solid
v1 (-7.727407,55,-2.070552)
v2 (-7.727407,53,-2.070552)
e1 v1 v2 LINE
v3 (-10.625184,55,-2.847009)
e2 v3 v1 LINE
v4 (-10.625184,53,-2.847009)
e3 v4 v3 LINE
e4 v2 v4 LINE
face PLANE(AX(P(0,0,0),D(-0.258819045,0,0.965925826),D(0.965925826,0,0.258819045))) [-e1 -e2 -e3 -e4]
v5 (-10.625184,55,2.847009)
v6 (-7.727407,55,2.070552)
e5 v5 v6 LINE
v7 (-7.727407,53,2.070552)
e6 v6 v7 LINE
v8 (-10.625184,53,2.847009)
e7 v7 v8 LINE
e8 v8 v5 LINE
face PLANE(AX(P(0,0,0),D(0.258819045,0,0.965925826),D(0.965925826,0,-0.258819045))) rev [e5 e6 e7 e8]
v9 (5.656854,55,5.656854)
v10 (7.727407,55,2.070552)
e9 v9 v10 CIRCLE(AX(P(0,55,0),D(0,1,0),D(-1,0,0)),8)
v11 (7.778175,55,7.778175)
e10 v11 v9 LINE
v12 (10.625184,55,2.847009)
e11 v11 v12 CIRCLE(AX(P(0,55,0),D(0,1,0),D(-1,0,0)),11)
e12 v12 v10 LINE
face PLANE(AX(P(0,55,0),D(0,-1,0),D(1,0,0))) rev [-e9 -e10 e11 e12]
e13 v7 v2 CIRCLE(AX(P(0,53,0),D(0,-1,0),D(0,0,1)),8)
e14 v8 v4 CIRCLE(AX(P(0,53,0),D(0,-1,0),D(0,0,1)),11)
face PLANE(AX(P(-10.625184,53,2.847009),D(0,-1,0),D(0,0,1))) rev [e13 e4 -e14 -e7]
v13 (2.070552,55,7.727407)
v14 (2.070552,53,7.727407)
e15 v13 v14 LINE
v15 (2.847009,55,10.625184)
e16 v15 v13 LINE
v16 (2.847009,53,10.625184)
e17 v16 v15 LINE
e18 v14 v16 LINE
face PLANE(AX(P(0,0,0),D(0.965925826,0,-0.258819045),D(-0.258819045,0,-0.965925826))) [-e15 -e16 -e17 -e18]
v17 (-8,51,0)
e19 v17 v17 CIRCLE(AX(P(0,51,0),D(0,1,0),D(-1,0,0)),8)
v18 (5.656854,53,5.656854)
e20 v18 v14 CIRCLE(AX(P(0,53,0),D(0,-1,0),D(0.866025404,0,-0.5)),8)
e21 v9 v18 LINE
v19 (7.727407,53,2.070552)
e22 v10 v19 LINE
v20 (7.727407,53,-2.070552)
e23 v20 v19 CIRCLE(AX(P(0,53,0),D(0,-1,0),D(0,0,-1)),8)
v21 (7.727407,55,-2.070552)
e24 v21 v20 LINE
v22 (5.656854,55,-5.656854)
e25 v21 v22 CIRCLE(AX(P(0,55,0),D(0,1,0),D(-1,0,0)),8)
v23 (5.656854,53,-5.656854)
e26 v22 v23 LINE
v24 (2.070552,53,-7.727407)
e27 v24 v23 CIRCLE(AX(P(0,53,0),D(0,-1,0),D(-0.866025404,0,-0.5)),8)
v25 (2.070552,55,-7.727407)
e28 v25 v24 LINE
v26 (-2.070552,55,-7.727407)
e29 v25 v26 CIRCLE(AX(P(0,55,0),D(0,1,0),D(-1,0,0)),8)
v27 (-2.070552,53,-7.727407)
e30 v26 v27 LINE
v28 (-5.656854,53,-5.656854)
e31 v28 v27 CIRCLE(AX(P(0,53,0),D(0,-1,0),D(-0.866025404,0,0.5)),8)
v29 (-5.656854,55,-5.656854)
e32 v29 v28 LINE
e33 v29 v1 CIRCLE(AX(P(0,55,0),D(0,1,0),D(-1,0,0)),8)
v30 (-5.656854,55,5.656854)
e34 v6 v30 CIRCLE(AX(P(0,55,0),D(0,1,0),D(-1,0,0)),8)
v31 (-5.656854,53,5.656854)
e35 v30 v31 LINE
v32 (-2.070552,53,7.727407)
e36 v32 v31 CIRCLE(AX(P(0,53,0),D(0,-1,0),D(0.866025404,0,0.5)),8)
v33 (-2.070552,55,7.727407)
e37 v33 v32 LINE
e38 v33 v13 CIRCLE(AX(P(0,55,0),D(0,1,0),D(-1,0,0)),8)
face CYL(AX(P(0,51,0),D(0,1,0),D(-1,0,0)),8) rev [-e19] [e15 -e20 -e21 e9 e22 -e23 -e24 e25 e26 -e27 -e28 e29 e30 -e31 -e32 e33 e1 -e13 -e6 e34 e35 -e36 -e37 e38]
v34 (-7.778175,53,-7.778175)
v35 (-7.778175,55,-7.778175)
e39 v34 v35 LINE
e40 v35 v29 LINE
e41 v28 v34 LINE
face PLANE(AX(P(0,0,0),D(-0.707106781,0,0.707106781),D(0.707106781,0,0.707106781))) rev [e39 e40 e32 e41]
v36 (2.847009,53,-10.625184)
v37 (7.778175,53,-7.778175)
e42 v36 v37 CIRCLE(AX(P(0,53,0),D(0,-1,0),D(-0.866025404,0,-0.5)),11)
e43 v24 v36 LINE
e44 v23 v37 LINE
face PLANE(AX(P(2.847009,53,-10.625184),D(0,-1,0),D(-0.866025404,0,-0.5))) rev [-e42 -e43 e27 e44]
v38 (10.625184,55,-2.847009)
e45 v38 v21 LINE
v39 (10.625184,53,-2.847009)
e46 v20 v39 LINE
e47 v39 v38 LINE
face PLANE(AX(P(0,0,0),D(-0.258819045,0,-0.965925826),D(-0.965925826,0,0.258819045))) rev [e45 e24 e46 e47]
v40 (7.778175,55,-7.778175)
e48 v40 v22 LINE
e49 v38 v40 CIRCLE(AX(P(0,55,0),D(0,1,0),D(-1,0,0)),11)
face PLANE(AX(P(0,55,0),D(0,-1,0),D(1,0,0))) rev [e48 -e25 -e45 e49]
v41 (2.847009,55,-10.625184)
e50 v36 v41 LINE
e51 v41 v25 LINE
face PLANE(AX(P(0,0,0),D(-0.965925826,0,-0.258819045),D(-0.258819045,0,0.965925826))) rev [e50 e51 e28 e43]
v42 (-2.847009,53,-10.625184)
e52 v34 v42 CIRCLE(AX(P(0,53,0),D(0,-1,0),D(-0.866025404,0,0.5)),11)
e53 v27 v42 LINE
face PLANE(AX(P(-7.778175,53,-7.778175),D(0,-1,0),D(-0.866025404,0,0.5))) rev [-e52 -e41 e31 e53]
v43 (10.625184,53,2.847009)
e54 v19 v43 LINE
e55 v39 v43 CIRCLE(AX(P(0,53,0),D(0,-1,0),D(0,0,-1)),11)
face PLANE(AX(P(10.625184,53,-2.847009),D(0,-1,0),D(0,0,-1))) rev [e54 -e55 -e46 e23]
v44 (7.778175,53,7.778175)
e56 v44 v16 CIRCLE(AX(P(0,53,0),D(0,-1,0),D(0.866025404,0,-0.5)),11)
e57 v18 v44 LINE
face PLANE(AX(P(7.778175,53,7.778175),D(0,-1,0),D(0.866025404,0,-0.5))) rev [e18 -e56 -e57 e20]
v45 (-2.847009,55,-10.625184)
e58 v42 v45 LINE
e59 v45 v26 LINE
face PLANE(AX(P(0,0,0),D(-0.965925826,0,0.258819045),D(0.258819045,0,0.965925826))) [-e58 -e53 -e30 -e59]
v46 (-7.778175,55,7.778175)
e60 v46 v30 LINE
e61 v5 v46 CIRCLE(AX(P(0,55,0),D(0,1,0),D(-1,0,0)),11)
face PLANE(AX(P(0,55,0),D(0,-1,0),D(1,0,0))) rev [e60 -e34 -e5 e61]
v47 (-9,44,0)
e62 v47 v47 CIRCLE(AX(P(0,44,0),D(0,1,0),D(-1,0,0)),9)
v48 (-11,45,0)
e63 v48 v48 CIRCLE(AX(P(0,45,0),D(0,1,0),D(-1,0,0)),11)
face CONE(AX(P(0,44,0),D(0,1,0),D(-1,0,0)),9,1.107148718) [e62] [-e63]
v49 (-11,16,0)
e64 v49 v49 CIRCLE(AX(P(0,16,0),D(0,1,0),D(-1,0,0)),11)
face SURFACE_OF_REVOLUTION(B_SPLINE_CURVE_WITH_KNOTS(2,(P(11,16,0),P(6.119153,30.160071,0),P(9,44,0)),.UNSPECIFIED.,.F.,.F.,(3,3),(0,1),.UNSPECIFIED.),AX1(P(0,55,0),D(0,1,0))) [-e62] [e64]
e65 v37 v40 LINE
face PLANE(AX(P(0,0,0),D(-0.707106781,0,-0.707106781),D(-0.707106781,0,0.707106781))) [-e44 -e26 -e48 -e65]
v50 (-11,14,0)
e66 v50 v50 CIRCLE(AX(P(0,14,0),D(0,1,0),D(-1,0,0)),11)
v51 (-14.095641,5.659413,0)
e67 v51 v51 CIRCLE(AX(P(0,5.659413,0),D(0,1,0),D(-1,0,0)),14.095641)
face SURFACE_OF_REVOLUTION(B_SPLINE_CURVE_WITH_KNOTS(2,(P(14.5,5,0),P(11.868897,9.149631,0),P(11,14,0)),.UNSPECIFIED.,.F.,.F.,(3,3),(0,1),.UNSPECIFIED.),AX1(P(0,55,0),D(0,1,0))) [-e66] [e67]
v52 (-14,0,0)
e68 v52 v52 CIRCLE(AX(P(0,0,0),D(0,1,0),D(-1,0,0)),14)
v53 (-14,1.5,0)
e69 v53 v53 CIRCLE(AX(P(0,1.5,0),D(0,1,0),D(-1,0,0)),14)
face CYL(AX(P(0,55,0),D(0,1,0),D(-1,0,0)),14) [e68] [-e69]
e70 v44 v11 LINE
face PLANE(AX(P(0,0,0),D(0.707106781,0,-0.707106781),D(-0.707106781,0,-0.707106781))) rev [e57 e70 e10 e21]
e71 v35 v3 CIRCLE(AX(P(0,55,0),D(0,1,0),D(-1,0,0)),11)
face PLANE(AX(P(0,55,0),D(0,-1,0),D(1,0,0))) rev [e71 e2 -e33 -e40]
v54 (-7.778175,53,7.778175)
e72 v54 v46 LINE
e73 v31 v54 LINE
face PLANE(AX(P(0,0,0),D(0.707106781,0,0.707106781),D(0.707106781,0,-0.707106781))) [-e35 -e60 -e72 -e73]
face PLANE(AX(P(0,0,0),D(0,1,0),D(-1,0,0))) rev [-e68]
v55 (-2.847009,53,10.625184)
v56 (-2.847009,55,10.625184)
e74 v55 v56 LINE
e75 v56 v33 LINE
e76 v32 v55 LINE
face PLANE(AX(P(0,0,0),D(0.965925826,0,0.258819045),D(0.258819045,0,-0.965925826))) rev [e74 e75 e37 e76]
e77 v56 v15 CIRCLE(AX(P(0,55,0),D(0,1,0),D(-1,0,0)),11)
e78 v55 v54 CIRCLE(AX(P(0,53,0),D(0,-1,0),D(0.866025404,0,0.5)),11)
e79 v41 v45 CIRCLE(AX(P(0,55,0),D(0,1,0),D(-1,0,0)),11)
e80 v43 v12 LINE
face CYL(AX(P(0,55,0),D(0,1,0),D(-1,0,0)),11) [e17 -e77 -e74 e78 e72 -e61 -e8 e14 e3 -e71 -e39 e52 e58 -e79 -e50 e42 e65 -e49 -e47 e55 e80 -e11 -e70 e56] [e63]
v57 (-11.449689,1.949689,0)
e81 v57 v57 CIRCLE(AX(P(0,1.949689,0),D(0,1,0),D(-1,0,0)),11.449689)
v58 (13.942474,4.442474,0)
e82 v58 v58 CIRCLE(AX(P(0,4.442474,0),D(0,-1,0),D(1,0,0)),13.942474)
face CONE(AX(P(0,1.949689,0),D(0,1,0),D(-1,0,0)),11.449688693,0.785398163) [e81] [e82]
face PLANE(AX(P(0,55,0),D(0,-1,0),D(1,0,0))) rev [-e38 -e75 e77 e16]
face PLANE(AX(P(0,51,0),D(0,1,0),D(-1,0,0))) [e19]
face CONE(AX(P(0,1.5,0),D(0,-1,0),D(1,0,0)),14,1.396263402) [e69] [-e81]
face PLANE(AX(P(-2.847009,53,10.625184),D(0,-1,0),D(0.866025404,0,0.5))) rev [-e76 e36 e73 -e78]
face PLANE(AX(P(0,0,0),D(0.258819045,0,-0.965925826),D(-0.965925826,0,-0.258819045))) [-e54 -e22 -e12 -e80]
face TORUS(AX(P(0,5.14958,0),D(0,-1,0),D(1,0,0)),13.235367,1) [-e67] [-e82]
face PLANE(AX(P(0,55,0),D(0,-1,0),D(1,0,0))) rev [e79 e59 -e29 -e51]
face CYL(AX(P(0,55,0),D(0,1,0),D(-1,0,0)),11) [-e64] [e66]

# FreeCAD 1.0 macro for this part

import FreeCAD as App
import Part
import Sketcher
from FreeCAD import Vector
Q = App.Units.Quantity


def edges_at(feature, points):
    """Names of the edges that pass closest to the given points."""
    edges = feature.Shape.Edges
    near = lambda p: min(range(len(edges)), key=lambda i: edges[i].distToShape(Part.Vertex(*p))[0])
    return sorted({f"Edge{near(p) + 1}" for p in points})

doc = App.newDocument("Part")
body = doc.addObject("PartDesign::Body", "Body")

# Sketch on XY plane
sketch1 = body.newObject("Sketcher::SketchObject", "Sketch")
sketch1.AttachmentSupport = (doc.getObject("XY_Plane"), [""])
sketch1.MapMode = "FlatFace"
sketch1.addGeometry([
    Part.LineSegment(Vector(0, 0, 0), Vector(14, 0, 0)),  # 0
    Part.LineSegment(Vector(14, 0, 0), Vector(14, 1.5, 0)),  # 1
    Part.LineSegment(Vector(14, 1.5, 0), Vector(11.449689, 1.949689, 0)),  # 2
    Part.LineSegment(Vector(11.449689, 1.949689, 0), Vector(14.5, 5, 0)),  # 3
    Part.BSplineCurve([Vector(11, 14, 0), Vector(11.868897, 9.149631, 0), Vector(14.5, 5, 0)], [3, 3], [0, 1], False, 2, [1, 1, 1], False),  # 4
    Part.LineSegment(Vector(11, 14, 0), Vector(11, 16, 0)),  # 5
    Part.BSplineCurve([Vector(9, 44, 0), Vector(6.119153, 30.160071, 0), Vector(11, 16, 0)], [3, 3], [0, 1], False, 2, [1, 1, 1], False),  # 6
    Part.LineSegment(Vector(9, 44, 0), Vector(11, 45, 0)),  # 7
    Part.LineSegment(Vector(11, 45, 0), Vector(11, 55, 0)),  # 8
    Part.LineSegment(Vector(11, 55, 0), Vector(0, 55, 0)),  # 9
    Part.LineSegment(Vector(0, 55, 0), Vector(0, 0, 0)),  # 10
], False)
sketch1.addConstraint([
    Sketcher.Constraint("Block", 4),
    Sketcher.Constraint("Block", 6),
    Sketcher.Constraint("Coincident", 0, 2, 1, 1),
    Sketcher.Constraint("Coincident", 1, 2, 2, 1),
    Sketcher.Constraint("Coincident", 2, 2, 3, 1),
    Sketcher.Constraint("Coincident", 3, 2, 4, 2),
    Sketcher.Constraint("Coincident", 4, 1, 5, 1),
    Sketcher.Constraint("Coincident", 5, 2, 6, 2),
    Sketcher.Constraint("Coincident", 6, 1, 7, 1),
    Sketcher.Constraint("Coincident", 7, 2, 8, 1),
    Sketcher.Constraint("Coincident", 8, 2, 9, 1),
    Sketcher.Constraint("Coincident", 9, 2, 10, 1),
    Sketcher.Constraint("Coincident", 10, 2, 0, 1),
    Sketcher.Constraint("Horizontal", 0),
    Sketcher.Constraint("Vertical", 1),
    Sketcher.Constraint("Vertical", 8),
    Sketcher.Constraint("Horizontal", 9),
    Sketcher.Constraint("Vertical", 10),
    Sketcher.Constraint("Coincident", 10, 2, -1, 1),
    Sketcher.Constraint("Vertical", 5, 2, 7, 2),
    Sketcher.Constraint("DistanceX", 0, 1, 0, 2, Q("14 mm")),
    Sketcher.Constraint("DistanceY", 8, 1, 8, 2, Q("10 mm")),
    Sketcher.Constraint("DistanceY", 10, 2, 10, 1, Q("55 mm")),
    Sketcher.Constraint("Angle", 2, Q("170 deg")),
    Sketcher.Constraint("Angle", 3, Q("45 deg")),
    Sketcher.Constraint("DistanceY", 1, 1, 1, 2, Q("1.5 mm")),
])
revolution = body.newObject("PartDesign::Revolution", "Revolution")
revolution.Profile = sketch1
revolution.ReferenceAxis = (sketch1, ["V_Axis"])
revolution.Angle = 360
doc.recompute()

fillet = body.newObject("PartDesign::Fillet", "Fillet")
fillet.Base = (revolution, edges_at(revolution, [(14.5, 5, 0)]))
fillet.Radius = 1

# Sketch on XZ plane
sketch2 = body.newObject("Sketcher::SketchObject", "Sketch001")
sketch2.AttachmentSupport = (doc.getObject("XZ_Plane"), [""])
sketch2.MapMode = "FlatFace"
sketch2.AttachmentOffset = App.Placement(Vector(0, 0, -55), App.Rotation())
sketch2.addGeometry(Part.Circle(Vector(0, 0, 0), Vector(0, 0, 1), 8), False)
sketch2.addConstraint([
    Sketcher.Constraint("Coincident", 0, 3, -1, 1),
    Sketcher.Constraint("Diameter", 0, Q("16 mm")),
])
pocket1 = body.newObject("PartDesign::Pocket", "Pocket")
pocket1.Profile = sketch2
pocket1.Length = 4
pocket1.Reversed = True

# Sketch on XY plane
sketch3 = body.newObject("Sketcher::SketchObject", "Sketch002")
sketch3.AttachmentSupport = (doc.getObject("XY_Plane"), [""])
sketch3.MapMode = "FlatFace"
sketch3.addGeometry([
    Part.LineSegment(Vector(8, 55, 0), Vector(8, 53, 0)),
    Part.LineSegment(Vector(8, 53, 0), Vector(11, 53, 0)),
    Part.LineSegment(Vector(11, 53, 0), Vector(11, 55, 0)),
    Part.LineSegment(Vector(11, 55, 0), Vector(8, 55, 0)),
], False)
sketch3.addConstraint([
    Sketcher.Constraint("Coincident", 0, 2, 1, 1),
    Sketcher.Constraint("Coincident", 1, 2, 2, 1),
    Sketcher.Constraint("Coincident", 2, 2, 3, 1),
    Sketcher.Constraint("Coincident", 3, 2, 0, 1),
    Sketcher.Constraint("Vertical", 0),
    Sketcher.Constraint("Horizontal", 1),
    Sketcher.Constraint("Vertical", 2),
    Sketcher.Constraint("Horizontal", 3),
    Sketcher.Constraint("DistanceX", 1, 1, 1, 2, Q("3 mm")),
    Sketcher.Constraint("DistanceY", 0, 2, 0, 1, Q("2 mm")),
    Sketcher.Constraint("DistanceX", -1, 1, 0, 2, Q("8 mm")),
    Sketcher.Constraint("DistanceY", -1, 1, 0, 2, Q("53 mm")),
])
groove = body.newObject("PartDesign::Groove", "Groove")
groove.Profile = sketch3
groove.ReferenceAxis = (sketch3, ["V_Axis"])
groove.Angle = 15

# Sketch on XY plane
sketch4 = body.newObject("Sketcher::SketchObject", "Sketch003")
sketch4.AttachmentSupport = (doc.getObject("XY_Plane"), [""])
sketch4.MapMode = "FlatFace"
sketch4.addGeometry([
    Part.LineSegment(Vector(8, 55, 0), Vector(8, 53, 0)),
    Part.LineSegment(Vector(8, 53, 0), Vector(11, 53, 0)),
    Part.LineSegment(Vector(11, 53, 0), Vector(11, 55, 0)),
    Part.LineSegment(Vector(11, 55, 0), Vector(8, 55, 0)),
], False)
sketch4.addConstraint([
    Sketcher.Constraint("Coincident", 0, 2, 1, 1),
    Sketcher.Constraint("Coincident", 1, 2, 2, 1),
    Sketcher.Constraint("Coincident", 2, 2, 3, 1),
    Sketcher.Constraint("Coincident", 3, 2, 0, 1),
    Sketcher.Constraint("Vertical", 0),
    Sketcher.Constraint("Horizontal", 1),
    Sketcher.Constraint("Vertical", 2),
    Sketcher.Constraint("Horizontal", 3),
    Sketcher.Constraint("DistanceX", 1, 1, 1, 2, Q("3 mm")),
    Sketcher.Constraint("DistanceY", 0, 2, 0, 1, Q("2 mm")),
    Sketcher.Constraint("DistanceX", -1, 1, 0, 2, Q("8 mm")),
    Sketcher.Constraint("DistanceY", -1, 1, 0, 2, Q("53 mm")),
])
groove2 = body.newObject("PartDesign::Groove", "Groove001")
groove2.Profile = sketch4
groove2.ReferenceAxis = (sketch4, ["V_Axis"])
groove2.Angle = 15
groove2.Reversed = True
doc.recompute()

polarpattern = body.newObject("PartDesign::PolarPattern", "PolarPattern")
polarpattern.Originals = [groove, groove2]
polarpattern.Axis = (doc.getObject("Y_Axis"), [""])
polarpattern.Angle = 360
polarpattern.Occurrences = 6
body.Tip = polarpattern

doc.recompute()
